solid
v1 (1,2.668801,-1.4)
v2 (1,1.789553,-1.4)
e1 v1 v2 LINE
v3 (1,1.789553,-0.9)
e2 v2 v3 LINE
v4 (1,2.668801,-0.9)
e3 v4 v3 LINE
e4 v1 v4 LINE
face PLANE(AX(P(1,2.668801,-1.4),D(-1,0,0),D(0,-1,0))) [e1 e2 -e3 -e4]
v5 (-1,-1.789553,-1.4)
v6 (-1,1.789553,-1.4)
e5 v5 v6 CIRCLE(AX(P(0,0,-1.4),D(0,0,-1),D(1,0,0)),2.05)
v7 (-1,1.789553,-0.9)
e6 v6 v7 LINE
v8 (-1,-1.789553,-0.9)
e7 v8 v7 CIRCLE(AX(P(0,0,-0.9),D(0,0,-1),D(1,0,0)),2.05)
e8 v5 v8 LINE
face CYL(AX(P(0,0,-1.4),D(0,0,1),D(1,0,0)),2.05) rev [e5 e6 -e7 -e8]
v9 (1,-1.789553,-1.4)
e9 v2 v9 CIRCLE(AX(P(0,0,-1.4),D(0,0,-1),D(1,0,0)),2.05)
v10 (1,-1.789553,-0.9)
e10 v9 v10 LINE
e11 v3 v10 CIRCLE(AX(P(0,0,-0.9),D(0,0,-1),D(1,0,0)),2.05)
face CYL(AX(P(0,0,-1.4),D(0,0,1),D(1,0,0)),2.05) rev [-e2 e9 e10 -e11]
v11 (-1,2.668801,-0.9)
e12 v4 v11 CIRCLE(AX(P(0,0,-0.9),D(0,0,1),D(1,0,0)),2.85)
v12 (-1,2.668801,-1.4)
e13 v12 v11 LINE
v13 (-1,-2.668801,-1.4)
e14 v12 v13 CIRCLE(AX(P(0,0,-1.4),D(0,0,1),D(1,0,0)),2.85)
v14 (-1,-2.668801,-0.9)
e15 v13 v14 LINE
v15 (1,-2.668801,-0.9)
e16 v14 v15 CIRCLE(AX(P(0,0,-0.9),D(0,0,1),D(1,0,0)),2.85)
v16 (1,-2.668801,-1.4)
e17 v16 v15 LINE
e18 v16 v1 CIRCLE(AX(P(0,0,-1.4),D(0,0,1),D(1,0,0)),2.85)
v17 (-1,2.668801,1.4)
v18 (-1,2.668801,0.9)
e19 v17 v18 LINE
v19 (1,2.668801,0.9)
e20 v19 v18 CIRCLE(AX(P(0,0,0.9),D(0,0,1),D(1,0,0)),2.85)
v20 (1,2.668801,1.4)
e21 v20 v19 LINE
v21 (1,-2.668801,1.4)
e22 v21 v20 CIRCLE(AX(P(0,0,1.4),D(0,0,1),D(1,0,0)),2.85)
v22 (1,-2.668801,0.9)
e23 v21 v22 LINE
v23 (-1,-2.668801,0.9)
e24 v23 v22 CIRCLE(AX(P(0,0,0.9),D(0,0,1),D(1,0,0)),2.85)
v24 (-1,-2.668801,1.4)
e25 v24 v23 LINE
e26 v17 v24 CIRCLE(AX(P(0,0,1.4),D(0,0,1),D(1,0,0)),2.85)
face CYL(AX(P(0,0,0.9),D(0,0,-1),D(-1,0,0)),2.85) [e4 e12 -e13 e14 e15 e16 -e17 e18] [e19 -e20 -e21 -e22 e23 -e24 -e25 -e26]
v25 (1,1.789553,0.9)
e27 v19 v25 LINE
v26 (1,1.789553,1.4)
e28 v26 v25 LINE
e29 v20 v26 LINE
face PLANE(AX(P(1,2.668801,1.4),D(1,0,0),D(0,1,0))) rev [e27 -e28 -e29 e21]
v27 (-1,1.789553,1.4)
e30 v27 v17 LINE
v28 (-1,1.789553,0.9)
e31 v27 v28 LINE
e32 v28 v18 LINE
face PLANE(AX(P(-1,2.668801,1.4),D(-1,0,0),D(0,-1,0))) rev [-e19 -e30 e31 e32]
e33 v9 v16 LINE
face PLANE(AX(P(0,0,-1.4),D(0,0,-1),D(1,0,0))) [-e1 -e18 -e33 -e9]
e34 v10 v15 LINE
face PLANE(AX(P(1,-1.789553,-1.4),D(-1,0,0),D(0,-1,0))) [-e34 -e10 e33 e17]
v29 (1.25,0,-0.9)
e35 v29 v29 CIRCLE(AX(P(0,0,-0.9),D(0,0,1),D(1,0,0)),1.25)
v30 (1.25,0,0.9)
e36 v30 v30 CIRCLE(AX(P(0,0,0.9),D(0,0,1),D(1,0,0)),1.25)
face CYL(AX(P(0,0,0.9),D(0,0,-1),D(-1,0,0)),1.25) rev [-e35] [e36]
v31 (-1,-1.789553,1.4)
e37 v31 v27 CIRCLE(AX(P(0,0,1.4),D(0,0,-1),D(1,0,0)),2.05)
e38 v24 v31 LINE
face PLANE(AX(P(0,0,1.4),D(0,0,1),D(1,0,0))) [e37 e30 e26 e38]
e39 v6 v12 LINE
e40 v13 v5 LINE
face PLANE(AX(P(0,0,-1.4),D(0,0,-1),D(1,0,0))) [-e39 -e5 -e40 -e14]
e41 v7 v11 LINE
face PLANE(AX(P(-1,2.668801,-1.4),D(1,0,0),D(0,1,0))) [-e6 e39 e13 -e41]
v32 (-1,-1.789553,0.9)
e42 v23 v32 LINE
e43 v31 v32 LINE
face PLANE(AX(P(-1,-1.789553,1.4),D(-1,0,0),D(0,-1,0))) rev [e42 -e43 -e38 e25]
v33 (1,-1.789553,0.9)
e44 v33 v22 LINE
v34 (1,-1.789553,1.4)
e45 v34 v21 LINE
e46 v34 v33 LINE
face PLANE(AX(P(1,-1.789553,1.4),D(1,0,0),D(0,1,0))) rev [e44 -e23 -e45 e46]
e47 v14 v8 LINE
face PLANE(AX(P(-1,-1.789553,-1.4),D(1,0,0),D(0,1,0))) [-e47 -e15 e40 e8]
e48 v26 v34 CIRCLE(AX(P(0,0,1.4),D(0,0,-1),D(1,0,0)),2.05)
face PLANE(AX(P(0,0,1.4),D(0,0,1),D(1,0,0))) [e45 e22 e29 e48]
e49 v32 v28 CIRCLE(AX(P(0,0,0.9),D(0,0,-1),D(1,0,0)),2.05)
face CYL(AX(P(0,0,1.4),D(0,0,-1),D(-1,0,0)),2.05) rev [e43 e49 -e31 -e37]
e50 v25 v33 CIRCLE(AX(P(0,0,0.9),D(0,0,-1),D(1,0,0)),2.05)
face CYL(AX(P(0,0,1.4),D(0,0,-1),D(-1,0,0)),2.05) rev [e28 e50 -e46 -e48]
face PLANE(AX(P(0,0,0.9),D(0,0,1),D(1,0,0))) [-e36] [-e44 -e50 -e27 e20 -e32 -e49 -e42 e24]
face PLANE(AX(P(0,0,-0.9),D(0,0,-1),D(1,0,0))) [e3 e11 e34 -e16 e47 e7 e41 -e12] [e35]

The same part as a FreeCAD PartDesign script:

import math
import FreeCAD as App
import Part
import Sketcher

doc = App.newDocument("Part")
body = doc.addObject("PartDesign::Body", "Body")

# Sketch on XY plane
sketch1 = doc.addObject("Sketcher::SketchObject", "Sketch")
body.addObject(sketch1)
sketch1.AttachmentSupport = (doc.XY_Plane, [""])
sketch1.MapMode = "FlatFace"
sketch1.addGeometry(Part.Circle(App.Vector(0, 0, 0), App.Vector(0, 0, 1), 2.9), False)
sketch1.addGeometry(Part.Circle(App.Vector(0, 0, 0), App.Vector(0, 0, 1), 1.2), False)
sketch1.addConstraint(Sketcher.Constraint("Coincident", 0, 3, -1, 1))
sketch1.addConstraint(Sketcher.Constraint("Coincident", 1, 3, -1, 1))
sketch1.addConstraint(Sketcher.Constraint("Diameter", 0, 5.7))
sketch1.addConstraint(Sketcher.Constraint("Diameter", 1, 2.5))
pad1 = doc.addObject("PartDesign::Pad", "Pad")
body.addObject(pad1)
pad1.Profile = sketch1
pad1.Length = 0.9

# Sketch on XY plane
sketch2 = doc.addObject("Sketcher::SketchObject", "Sketch001")
body.addObject(sketch2)
sketch2.AttachmentSupport = (doc.XY_Plane, [""])
sketch2.MapMode = "FlatFace"
sketch2.AttachmentOffset = App.Placement(App.Vector(0, 0, 0.9), App.Rotation())
sketch2.addGeometry(Part.LineSegment(App.Vector(-1, 1.8, 0), App.Vector(-1, 2.7, 0)), False)
sketch2.addGeometry(Part.ArcOfCircle(Part.Circle(App.Vector(0, 0, 0), App.Vector(0, 0, 1), 2.9), math.radians(111), math.radians(249)), False)
sketch2.addGeometry(Part.LineSegment(App.Vector(-1, -2.7, 0), App.Vector(-1, -1.8, 0)), False)
sketch2.addGeometry(Part.ArcOfCircle(Part.Circle(App.Vector(0, 0, 0), App.Vector(0, 0, 1), 2), math.radians(119), math.radians(241)), False)
sketch2.addGeometry(Part.LineSegment(App.Vector(1, 2.7, 0), App.Vector(1, 1.8, 0)), False)
sketch2.addGeometry(Part.ArcOfCircle(Part.Circle(App.Vector(0, 0, 0), App.Vector(0, 0, 1), 2), math.radians(-61), math.radians(61)), False)
sketch2.addGeometry(Part.LineSegment(App.Vector(1, -1.8, 0), App.Vector(1, -2.7, 0)), False)
sketch2.addGeometry(Part.ArcOfCircle(Part.Circle(App.Vector(0, 0, 0), App.Vector(0, 0, 1), 2.9), math.radians(-69), math.radians(69)), False)
sketch2.addConstraint(Sketcher.Constraint("Coincident", 0, 2, 1, 1))
sketch2.addConstraint(Sketcher.Constraint("Coincident", 1, 2, 2, 1))
sketch2.addConstraint(Sketcher.Constraint("Coincident", 2, 2, 3, 2))
sketch2.addConstraint(Sketcher.Constraint("Coincident", 3, 1, 0, 1))
sketch2.addConstraint(Sketcher.Constraint("Coincident", 4, 2, 5, 2))
sketch2.addConstraint(Sketcher.Constraint("Coincident", 5, 1, 6, 1))
sketch2.addConstraint(Sketcher.Constraint("Coincident", 6, 2, 7, 1))
sketch2.addConstraint(Sketcher.Constraint("Coincident", 7, 2, 4, 1))
sketch2.addConstraint(Sketcher.Constraint("Vertical", 0))
sketch2.addConstraint(Sketcher.Constraint("Vertical", 2))
sketch2.addConstraint(Sketcher.Constraint("Vertical", 4))
sketch2.addConstraint(Sketcher.Constraint("Vertical", 6))
sketch2.addConstraint(Sketcher.Constraint("Coincident", 1, 3, -1, 1))
sketch2.addConstraint(Sketcher.Constraint("Coincident", 3, 3, -1, 1))
sketch2.addConstraint(Sketcher.Constraint("Coincident", 5, 3, -1, 1))
sketch2.addConstraint(Sketcher.Constraint("Coincident", 7, 3, -1, 1))
sketch2.addConstraint(Sketcher.Constraint("Equal", 3, 5))
sketch2.addConstraint(Sketcher.Constraint("Equal", 1, 7))
sketch2.addConstraint(Sketcher.Constraint("Horizontal", 3, 1, 4, 2))
sketch2.addConstraint(Sketcher.Constraint("Horizontal", 2, 2, 5, 1))
sketch2.addConstraint(Sketcher.Constraint("Vertical", 0, 2, 1, 2))
sketch2.addConstraint(Sketcher.Constraint("Radius", 1, 2.85))
sketch2.addConstraint(Sketcher.Constraint("Radius", 3, 2.05))
sketch2.addConstraint(Sketcher.Constraint("DistanceX", 0, 2, -1, 1, 1.0))
pad2 = doc.addObject("PartDesign::Pad", "Pad001")
body.addObject(pad2)
pad2.Profile = sketch2
pad2.Length = 0.5
doc.recompute()

mirrored = doc.addObject("PartDesign::Mirrored", "Mirrored")
body.addObject(mirrored)
mirrored.Originals = [pad1, pad2]
mirrored.MirrorPlane = (doc.XY_Plane, [""])
body.Tip = mirrored

doc.recompute()
